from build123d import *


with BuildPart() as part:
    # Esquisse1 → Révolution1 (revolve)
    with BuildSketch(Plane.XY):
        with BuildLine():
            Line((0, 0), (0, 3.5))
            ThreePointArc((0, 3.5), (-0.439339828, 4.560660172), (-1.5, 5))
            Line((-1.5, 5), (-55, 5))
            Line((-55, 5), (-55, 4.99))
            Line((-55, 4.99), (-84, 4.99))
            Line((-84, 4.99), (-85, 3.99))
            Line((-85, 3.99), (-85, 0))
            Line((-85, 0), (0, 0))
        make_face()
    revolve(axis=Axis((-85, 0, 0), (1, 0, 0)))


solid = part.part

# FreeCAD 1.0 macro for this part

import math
import FreeCAD as App
import Part
import Sketcher
Q = App.Units.Quantity

doc = App.newDocument("Part")
body = doc.addObject("PartDesign::Body", "Body")

# Sketch on XY plane
sketch1 = body.newObject("Sketcher::SketchObject", "Sketch")
sketch1.AttachmentSupport = (doc.getObject("XY_Plane"), [""])
sketch1.MapMode = "FlatFace"
sketch1.addGeometry(Part.LineSegment(App.Vector(0, 0, 0), App.Vector(0, 3.5, 0)), False)
sketch1.addGeometry(Part.ArcOfCircle(Part.Circle(App.Vector(-1.5, 3.5, 0), App.Vector(0, 0, 1), 1.5), math.radians(0), math.radians(90)), False)
sketch1.addGeometry(Part.LineSegment(App.Vector(-1.5, 5, 0), App.Vector(-55, 5, 0)), False)
sketch1.addGeometry(Part.LineSegment(App.Vector(-55, 5, 0), App.Vector(-55, 4.99, 0)), False)
sketch1.addGeometry(Part.LineSegment(App.Vector(-55, 4.99, 0), App.Vector(-84, 4.99, 0)), False)
sketch1.addGeometry(Part.LineSegment(App.Vector(-84, 4.99, 0), App.Vector(-85, 3.99, 0)), False)
sketch1.addGeometry(Part.LineSegment(App.Vector(-85, 3.99, 0), App.Vector(-85, 0, 0)), False)
sketch1.addGeometry(Part.LineSegment(App.Vector(-85, 0, 0), App.Vector(0, 0, 0)), False)
sketch1.addConstraint(Sketcher.Constraint("Tangent", 0, 2, 1, 1))
sketch1.addConstraint(Sketcher.Constraint("Tangent", 1, 2, 2, 1))
sketch1.addConstraint(Sketcher.Constraint("Coincident", 2, 2, 3, 1))
sketch1.addConstraint(Sketcher.Constraint("Coincident", 3, 2, 4, 1))
sketch1.addConstraint(Sketcher.Constraint("Coincident", 4, 2, 5, 1))
sketch1.addConstraint(Sketcher.Constraint("Coincident", 5, 2, 6, 1))
sketch1.addConstraint(Sketcher.Constraint("Coincident", 6, 2, 7, 1))
sketch1.addConstraint(Sketcher.Constraint("Coincident", 7, 2, 0, 1))
sketch1.addConstraint(Sketcher.Constraint("Vertical", 0))
sketch1.addConstraint(Sketcher.Constraint("Horizontal", 2))
sketch1.addConstraint(Sketcher.Constraint("Vertical", 3))
sketch1.addConstraint(Sketcher.Constraint("Horizontal", 4))
sketch1.addConstraint(Sketcher.Constraint("Vertical", 6))
sketch1.addConstraint(Sketcher.Constraint("Horizontal", 7))
sketch1.addConstraint(Sketcher.Constraint("Coincident", 7, 2, -1, 1))
sketch1.addConstraint(Sketcher.Constraint("Radius", 1, 1.5))
sketch1.addConstraint(Sketcher.Constraint("DistanceX", 4, 2, 4, 1, 29.0))
sketch1.addConstraint(Sketcher.Constraint("DistanceX", 7, 1, 7, 2, 85.0))
sketch1.addConstraint(Sketcher.Constraint("Angle", 5, Q("-135 deg")))
sketch1.addConstraint(Sketcher.Constraint("DistanceX", 2, 2, 2, 1, 53.5))
sketch1.addConstraint(Sketcher.Constraint("DistanceY", 0, 1, 0, 2, 3.5))
sketch1.addConstraint(Sketcher.Constraint("DistanceY", 3, 2, 3, 1, 0.01))
revolution = body.newObject("PartDesign::Revolution", "Revolution")
revolution.Profile = sketch1
revolution.ReferenceAxis = (sketch1, ["H_Axis"])
revolution.Angle = 360

doc.recompute()
